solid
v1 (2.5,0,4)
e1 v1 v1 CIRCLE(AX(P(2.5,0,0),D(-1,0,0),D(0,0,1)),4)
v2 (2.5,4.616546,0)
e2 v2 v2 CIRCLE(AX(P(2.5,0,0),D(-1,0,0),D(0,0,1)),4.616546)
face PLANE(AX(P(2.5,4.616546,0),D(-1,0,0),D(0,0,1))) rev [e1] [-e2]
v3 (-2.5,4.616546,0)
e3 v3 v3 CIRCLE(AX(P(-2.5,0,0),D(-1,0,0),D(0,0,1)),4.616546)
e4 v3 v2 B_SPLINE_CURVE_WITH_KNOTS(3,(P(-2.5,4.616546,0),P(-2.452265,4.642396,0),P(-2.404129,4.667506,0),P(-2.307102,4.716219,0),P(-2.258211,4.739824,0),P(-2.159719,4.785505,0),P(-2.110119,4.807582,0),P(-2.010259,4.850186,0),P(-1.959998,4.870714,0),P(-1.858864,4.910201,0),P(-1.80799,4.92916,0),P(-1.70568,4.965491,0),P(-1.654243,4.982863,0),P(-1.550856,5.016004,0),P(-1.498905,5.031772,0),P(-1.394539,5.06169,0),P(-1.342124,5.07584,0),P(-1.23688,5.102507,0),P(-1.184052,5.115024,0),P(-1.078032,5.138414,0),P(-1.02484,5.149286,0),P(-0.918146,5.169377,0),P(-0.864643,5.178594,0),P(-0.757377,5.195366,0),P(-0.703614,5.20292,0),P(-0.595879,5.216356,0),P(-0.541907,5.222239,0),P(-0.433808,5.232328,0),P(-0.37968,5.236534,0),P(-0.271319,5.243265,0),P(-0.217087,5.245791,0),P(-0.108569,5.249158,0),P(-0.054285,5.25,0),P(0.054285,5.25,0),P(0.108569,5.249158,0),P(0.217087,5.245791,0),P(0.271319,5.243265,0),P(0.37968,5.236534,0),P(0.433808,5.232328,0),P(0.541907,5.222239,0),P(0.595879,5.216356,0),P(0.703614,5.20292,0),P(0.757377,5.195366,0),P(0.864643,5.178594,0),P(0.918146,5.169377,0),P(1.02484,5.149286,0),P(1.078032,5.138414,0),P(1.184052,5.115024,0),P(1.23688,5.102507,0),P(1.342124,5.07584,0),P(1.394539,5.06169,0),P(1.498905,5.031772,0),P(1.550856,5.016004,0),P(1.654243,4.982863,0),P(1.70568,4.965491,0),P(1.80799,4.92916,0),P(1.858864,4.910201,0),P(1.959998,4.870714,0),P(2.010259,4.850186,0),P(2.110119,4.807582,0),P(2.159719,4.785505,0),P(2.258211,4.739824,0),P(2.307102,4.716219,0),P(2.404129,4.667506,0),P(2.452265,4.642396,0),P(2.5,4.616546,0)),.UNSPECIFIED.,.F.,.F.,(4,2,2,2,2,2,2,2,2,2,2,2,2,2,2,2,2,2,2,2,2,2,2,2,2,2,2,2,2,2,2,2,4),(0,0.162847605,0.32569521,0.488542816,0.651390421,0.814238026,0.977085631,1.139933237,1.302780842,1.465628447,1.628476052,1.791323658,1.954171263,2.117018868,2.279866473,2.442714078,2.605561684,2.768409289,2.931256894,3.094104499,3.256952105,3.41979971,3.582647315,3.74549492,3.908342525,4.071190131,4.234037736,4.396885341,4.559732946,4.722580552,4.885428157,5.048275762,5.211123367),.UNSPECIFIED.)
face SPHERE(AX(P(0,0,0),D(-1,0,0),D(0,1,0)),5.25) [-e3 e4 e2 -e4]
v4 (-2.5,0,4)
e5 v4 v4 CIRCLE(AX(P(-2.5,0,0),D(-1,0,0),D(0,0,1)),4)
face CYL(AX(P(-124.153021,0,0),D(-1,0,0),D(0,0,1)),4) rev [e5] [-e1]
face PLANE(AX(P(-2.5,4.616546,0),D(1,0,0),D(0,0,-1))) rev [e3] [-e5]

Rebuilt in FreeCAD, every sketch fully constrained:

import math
import FreeCAD as App
import Part
import Sketcher

V = App.Vector

doc = App.newDocument("Part")
body = doc.addObject("PartDesign::Body", "Body")

sketch1 = doc.addObject("Sketcher::SketchObject", "Sketch")
body.addObject(sketch1)
sketch1.AttachmentSupport = (doc.XY_Plane, [""])
sketch1.MapMode = "FlatFace"
sketch1.addGeometry([
    Part.LineSegment(V(2.5, 4, 0), V(2.5, 4.6, 0)),
    Part.ArcOfCircle(Part.Circle(V(0, 0, 0), V(0, 0, 1), 5.2), math.radians(62), math.radians(118)),
    Part.LineSegment(V(-2.5, 4.6, 0), V(-2.5, 4, 0)),
    Part.LineSegment(V(-2.5, 4, 0), V(2.5, 4, 0)),
], False)
sketch1.addConstraint([
    Sketcher.Constraint("Coincident", 0, 2, 1, 1),
    Sketcher.Constraint("Coincident", 1, 2, 2, 1),
    Sketcher.Constraint("Coincident", 2, 2, 3, 1),
    Sketcher.Constraint("Coincident", 3, 2, 0, 1),
    Sketcher.Constraint("Vertical", 0),
    Sketcher.Constraint("Vertical", 2),
    Sketcher.Constraint("Horizontal", 3),
    Sketcher.Constraint("Coincident", 1, 3, -1, 1),
    Sketcher.Constraint("Horizontal", 0, 2, 1, 2),
    Sketcher.Constraint("DistanceX", 3, 1, 3, 2, 5.0),
    Sketcher.Constraint("Radius", 1, 5.25),
    Sketcher.Constraint("DistanceY", -1, 1, 2, 2, 4.0),
])
revolution = doc.addObject("PartDesign::Revolution", "Revolution")
body.addObject(revolution)
revolution.Profile = sketch1
revolution.ReferenceAxis = (sketch1, ["H_Axis"])
revolution.Angle = 360

doc.recompute()
